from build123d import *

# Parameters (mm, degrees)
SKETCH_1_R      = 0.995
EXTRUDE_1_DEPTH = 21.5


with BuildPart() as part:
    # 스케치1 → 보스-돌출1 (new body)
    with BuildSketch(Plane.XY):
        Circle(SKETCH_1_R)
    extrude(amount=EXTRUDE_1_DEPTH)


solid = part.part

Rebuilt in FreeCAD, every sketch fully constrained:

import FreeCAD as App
import Part
import Sketcher
Q = App.Units.Quantity

doc = App.newDocument("Part")
body = doc.addObject("PartDesign::Body", "Body")

# Sketch on XY plane
sketch1 = body.newObject("Sketcher::SketchObject", "Sketch")
sketch1.AttachmentSupport = (doc.getObject("XY_Plane"), [""])
sketch1.MapMode = "FlatFace"
sketch1.addGeometry(Part.Circle(App.Vector(0, 0, 0), App.Vector(0, 0, 1), 1), False)
sketch1.addConstraint(Sketcher.Constraint("Coincident", 0, 3, -1, 1))
sketch1.addConstraint(Sketcher.Constraint("Diameter", 0, Q("1.99 mm")))
pad1 = body.newObject("PartDesign::Pad", "Pad")
pad1.Profile = sketch1
pad1.Length = 21.5

doc.recompute()
